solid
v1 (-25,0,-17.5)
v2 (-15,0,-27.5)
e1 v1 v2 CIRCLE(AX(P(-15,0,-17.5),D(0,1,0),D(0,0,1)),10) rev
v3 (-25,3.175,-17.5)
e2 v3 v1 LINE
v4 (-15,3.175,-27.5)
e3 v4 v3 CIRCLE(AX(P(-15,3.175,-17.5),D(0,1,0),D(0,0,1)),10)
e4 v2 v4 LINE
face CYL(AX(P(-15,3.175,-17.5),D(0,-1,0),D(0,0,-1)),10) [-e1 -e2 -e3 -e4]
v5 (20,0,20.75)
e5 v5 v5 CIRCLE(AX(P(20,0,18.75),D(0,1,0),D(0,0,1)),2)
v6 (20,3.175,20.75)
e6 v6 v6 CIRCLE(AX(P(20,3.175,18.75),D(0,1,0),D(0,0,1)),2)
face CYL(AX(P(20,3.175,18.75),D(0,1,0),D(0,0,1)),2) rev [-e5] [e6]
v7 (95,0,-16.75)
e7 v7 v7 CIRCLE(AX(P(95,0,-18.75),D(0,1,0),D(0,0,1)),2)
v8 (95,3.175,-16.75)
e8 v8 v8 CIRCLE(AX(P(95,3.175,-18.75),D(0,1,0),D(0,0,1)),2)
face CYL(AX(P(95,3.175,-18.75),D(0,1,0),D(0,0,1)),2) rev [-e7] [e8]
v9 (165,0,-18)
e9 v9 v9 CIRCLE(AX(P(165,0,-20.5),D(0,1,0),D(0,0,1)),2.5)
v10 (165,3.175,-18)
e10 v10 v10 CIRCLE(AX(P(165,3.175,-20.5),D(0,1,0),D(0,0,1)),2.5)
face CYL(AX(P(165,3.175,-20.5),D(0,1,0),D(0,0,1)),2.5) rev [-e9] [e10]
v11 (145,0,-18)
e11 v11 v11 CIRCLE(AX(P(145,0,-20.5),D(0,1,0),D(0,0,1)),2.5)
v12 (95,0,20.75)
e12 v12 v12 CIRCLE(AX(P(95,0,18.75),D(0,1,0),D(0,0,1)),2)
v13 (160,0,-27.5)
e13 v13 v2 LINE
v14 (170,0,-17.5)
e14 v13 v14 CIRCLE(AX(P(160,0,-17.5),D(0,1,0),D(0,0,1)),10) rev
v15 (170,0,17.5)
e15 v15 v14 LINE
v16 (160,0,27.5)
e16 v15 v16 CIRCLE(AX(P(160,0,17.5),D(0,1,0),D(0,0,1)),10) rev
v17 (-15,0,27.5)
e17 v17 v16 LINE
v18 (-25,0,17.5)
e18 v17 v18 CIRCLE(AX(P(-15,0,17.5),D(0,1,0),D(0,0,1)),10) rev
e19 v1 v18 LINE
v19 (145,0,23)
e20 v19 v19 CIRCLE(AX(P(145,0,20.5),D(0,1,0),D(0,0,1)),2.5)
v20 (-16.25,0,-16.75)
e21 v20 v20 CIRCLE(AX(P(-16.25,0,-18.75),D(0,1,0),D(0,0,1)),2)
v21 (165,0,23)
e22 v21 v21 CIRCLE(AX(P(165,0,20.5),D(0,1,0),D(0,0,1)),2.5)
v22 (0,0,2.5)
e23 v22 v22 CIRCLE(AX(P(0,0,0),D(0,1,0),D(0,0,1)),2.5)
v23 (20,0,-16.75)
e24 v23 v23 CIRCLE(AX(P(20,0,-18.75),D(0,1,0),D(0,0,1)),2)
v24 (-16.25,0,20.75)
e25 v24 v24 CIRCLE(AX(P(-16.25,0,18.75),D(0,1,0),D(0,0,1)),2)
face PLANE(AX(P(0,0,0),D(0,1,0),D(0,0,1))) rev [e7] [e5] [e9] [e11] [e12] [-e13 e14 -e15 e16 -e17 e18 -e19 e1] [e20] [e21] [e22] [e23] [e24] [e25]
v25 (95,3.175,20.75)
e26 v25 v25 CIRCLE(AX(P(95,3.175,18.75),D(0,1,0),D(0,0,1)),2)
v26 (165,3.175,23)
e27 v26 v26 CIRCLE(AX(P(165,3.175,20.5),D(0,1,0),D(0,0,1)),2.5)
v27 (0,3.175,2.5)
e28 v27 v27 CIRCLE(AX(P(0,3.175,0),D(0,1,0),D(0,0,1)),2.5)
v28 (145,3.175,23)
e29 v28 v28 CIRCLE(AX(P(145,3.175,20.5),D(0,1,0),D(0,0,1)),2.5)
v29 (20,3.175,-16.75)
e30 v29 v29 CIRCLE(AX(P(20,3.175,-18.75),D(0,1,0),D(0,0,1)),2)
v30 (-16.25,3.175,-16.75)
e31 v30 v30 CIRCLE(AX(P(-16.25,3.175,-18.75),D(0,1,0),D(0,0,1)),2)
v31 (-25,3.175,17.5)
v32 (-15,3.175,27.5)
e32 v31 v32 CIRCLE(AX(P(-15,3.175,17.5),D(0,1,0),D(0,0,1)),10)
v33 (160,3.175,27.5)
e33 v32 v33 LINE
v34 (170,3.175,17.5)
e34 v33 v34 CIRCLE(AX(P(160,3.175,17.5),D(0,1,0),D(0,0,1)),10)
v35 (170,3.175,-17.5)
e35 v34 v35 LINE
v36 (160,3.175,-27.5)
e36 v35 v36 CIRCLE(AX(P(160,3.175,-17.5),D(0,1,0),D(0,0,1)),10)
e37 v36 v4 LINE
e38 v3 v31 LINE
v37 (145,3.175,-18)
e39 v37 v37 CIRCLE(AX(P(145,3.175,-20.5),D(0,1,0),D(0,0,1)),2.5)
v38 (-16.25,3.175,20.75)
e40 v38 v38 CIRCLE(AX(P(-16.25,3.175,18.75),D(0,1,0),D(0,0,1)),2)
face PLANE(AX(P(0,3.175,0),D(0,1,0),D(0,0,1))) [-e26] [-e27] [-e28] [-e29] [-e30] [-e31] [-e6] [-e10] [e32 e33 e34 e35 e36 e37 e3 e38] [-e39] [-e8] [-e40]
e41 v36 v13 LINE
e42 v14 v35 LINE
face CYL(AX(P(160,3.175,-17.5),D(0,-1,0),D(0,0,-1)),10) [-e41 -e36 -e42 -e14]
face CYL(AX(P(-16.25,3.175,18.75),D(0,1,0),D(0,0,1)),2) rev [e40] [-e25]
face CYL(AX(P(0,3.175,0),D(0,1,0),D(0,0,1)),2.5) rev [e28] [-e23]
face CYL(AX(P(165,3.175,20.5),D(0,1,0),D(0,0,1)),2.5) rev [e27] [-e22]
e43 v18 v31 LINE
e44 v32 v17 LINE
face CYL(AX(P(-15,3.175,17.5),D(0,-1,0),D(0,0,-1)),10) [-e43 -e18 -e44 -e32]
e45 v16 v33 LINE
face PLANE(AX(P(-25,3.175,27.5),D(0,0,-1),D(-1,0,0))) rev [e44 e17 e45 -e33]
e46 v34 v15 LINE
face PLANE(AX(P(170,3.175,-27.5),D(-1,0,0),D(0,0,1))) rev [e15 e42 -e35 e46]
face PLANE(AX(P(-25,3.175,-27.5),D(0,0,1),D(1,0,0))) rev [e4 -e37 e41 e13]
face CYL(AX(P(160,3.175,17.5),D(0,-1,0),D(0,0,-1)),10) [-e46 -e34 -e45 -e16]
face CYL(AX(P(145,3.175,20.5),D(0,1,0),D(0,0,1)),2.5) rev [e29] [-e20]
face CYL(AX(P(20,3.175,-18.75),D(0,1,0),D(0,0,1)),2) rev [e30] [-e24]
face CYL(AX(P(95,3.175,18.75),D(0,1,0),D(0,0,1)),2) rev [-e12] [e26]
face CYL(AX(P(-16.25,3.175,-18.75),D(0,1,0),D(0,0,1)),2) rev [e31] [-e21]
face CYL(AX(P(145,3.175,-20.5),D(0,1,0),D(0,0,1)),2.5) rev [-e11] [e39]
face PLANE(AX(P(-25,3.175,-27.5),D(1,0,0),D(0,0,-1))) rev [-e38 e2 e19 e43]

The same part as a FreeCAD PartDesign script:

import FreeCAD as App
import Part
import Sketcher
from FreeCAD import Vector
Q = App.Units.Quantity


def edges_at(feature, points):
    """Names of the edges that pass closest to the given points."""
    edges = feature.Shape.Edges
    near = lambda p: min(range(len(edges)), key=lambda i: edges[i].distToShape(Part.Vertex(*p))[0])
    return sorted({f"Edge{near(p) + 1}" for p in points})

doc = App.newDocument("Part")
body = doc.addObject("PartDesign::Body", "Body")

# Sketch on XZ plane
sketch1 = body.newObject("Sketcher::SketchObject", "Sketch")
sketch1.AttachmentSupport = (doc.getObject("XZ_Plane"), [""])
sketch1.MapMode = "FlatFace"
sketch1.addGeometry([
    Part.LineSegment(Vector(-25, -27.5, 0), Vector(-25, 27.5, 0)),
    Part.LineSegment(Vector(-25, 27.5, 0), Vector(170, 27.5, 0)),
    Part.LineSegment(Vector(170, 27.5, 0), Vector(170, -27.5, 0)),
    Part.LineSegment(Vector(170, -27.5, 0), Vector(-25, -27.5, 0)),
], False)
sketch1.addConstraint([
    Sketcher.Constraint("Coincident", 0, 2, 1, 1),
    Sketcher.Constraint("Coincident", 1, 2, 2, 1),
    Sketcher.Constraint("Coincident", 2, 2, 3, 1),
    Sketcher.Constraint("Coincident", 3, 2, 0, 1),
    Sketcher.Constraint("Vertical", 0),
    Sketcher.Constraint("Horizontal", 1),
    Sketcher.Constraint("Vertical", 2),
    Sketcher.Constraint("Horizontal", 3),
    Sketcher.Constraint("DistanceX", 1, 1, 1, 2, Q("195 mm")),
    Sketcher.Constraint("DistanceY", 0, 1, 0, 2, Q("55 mm")),
    Sketcher.Constraint("DistanceX", 0, 2, -1, 1, Q("25 mm")),
    Sketcher.Constraint("DistanceY", -1, 1, 0, 2, Q("27.5 mm")),
])
pad1 = body.newObject("PartDesign::Pad", "Pad")
pad1.Profile = sketch1
pad1.Length = 3.175
pad1.Reversed = True
doc.recompute()

fillet = body.newObject("PartDesign::Fillet", "Fillet")
fillet.Base = (pad1, edges_at(pad1, [
    (-25, 1.587, -27.5),
    (170, 1.587, -27.5),
    (170, 1.587, 27.5),
    (-25, 1.587, 27.5),
]))
fillet.Radius = 10

# Sketch on XZ plane
sketch2 = body.newObject("Sketcher::SketchObject", "Sketch001")
sketch2.AttachmentSupport = (doc.getObject("XZ_Plane"), [""])
sketch2.MapMode = "FlatFace"
sketch2.AttachmentOffset = App.Placement(Vector(0, 0, -3.175), App.Rotation())
sketch2.addGeometry(Part.Circle(Vector(0, 0, 0), Vector(0, 0, 1), 2.5), False)
sketch2.addConstraint([
    Sketcher.Constraint("Coincident", 0, 3, -1, 1),
    Sketcher.Constraint("Diameter", 0, Q("5 mm")),
])
doc.recompute()
hole = body.newObject("PartDesign::Hole", "Hole")
hole.Profile = sketch2
hole.ThreadType = "None"
hole.Diameter = 5
hole.DepthType = "ThroughAll"
hole.Reversed = True

# Sketch on XZ plane
sketch3 = body.newObject("Sketcher::SketchObject", "Sketch002")
sketch3.AttachmentSupport = (doc.getObject("XZ_Plane"), [""])
sketch3.MapMode = "FlatFace"
sketch3.AttachmentOffset = App.Placement(Vector(0, 0, -3.175), App.Rotation())
sketch3.addGeometry([
    Part.Circle(Vector(-16.25, 18.75, 0), Vector(0, 0, 1), 2),  # 0
    Part.Circle(Vector(20, 18.75, 0), Vector(0, 0, 1), 2),  # 1
    Part.Circle(Vector(95, 18.75, 0), Vector(0, 0, 1), 2),  # 2
    Part.Circle(Vector(95, -18.75, 0), Vector(0, 0, 1), 2),  # 3
    Part.Circle(Vector(20, -18.75, 0), Vector(0, 0, 1), 2),  # 4
    Part.Circle(Vector(-16.25, -18.75, 0), Vector(0, 0, 1), 2),  # 5
], False)
sketch3.addConstraint([
    Sketcher.Constraint("Equal", 0, 1),
    Sketcher.Constraint("Equal", 1, 2),
    Sketcher.Constraint("Equal", 2, 3),
    Sketcher.Constraint("Equal", 3, 4),
    Sketcher.Constraint("Equal", 4, 5),
    Sketcher.Constraint("Symmetric", 2, 3, 3, 3, -1),
    Sketcher.Constraint("Symmetric", 1, 3, 4, 3, -1),
    Sketcher.Constraint("Symmetric", 0, 3, 5, 3, -1),
    Sketcher.Constraint("Horizontal", 0, 3, 1, 3),
    Sketcher.Constraint("Horizontal", 1, 3, 2, 3),
    Sketcher.Constraint("Diameter", 0, Q("4 mm")),
    Sketcher.Constraint("DistanceX", -1, 1, 1, 3, Q("20 mm")),
    Sketcher.Constraint("DistanceX", -1, 1, 2, 3, Q("95 mm")),
    Sketcher.Constraint("DistanceY", 3, 3, 2, 3, Q("37.5 mm")),
    Sketcher.Constraint("DistanceX", 0, 3, -1, 1, Q("16.25 mm")),
])
doc.recompute()
hole2 = body.newObject("PartDesign::Hole", "Hole001")
hole2.Profile = sketch3
hole2.ThreadType = "None"
hole2.Diameter = 4
hole2.DepthType = "ThroughAll"
hole2.Reversed = True

# Sketch on XZ plane
sketch4 = body.newObject("Sketcher::SketchObject", "Sketch003")
sketch4.AttachmentSupport = (doc.getObject("XZ_Plane"), [""])
sketch4.MapMode = "FlatFace"
sketch4.AttachmentOffset = App.Placement(Vector(0, 0, -3.175), App.Rotation())
sketch4.addGeometry([
    Part.Circle(Vector(165, -20.5, 0), Vector(0, 0, 1), 2.5),
    Part.Circle(Vector(145, -20.5, 0), Vector(0, 0, 1), 2.5),
    Part.Circle(Vector(165, 20.5, 0), Vector(0, 0, 1), 2.5),
    Part.Circle(Vector(145, 20.5, 0), Vector(0, 0, 1), 2.5),
], False)
sketch4.addConstraint([
    Sketcher.Constraint("Equal", 0, 1),
    Sketcher.Constraint("Equal", 1, 2),
    Sketcher.Constraint("Equal", 2, 3),
    Sketcher.Constraint("Symmetric", 0, 3, 2, 3, -1),
    Sketcher.Constraint("Symmetric", 1, 3, 3, 3, -1),
    Sketcher.Constraint("Horizontal", 0, 3, 1, 3),
    Sketcher.Constraint("Diameter", 0, Q("5 mm")),
    Sketcher.Constraint("DistanceX", -1, 1, 0, 3, Q("165 mm")),
    Sketcher.Constraint("DistanceX", -1, 1, 1, 3, Q("145 mm")),
    Sketcher.Constraint("DistanceY", 0, 3, 2, 3, Q("41 mm")),
])
doc.recompute()
hole3 = body.newObject("PartDesign::Hole", "Hole002")
hole3.Profile = sketch4
hole3.ThreadType = "None"
hole3.Diameter = 5
hole3.DepthType = "ThroughAll"
hole3.Reversed = True

doc.recompute()
